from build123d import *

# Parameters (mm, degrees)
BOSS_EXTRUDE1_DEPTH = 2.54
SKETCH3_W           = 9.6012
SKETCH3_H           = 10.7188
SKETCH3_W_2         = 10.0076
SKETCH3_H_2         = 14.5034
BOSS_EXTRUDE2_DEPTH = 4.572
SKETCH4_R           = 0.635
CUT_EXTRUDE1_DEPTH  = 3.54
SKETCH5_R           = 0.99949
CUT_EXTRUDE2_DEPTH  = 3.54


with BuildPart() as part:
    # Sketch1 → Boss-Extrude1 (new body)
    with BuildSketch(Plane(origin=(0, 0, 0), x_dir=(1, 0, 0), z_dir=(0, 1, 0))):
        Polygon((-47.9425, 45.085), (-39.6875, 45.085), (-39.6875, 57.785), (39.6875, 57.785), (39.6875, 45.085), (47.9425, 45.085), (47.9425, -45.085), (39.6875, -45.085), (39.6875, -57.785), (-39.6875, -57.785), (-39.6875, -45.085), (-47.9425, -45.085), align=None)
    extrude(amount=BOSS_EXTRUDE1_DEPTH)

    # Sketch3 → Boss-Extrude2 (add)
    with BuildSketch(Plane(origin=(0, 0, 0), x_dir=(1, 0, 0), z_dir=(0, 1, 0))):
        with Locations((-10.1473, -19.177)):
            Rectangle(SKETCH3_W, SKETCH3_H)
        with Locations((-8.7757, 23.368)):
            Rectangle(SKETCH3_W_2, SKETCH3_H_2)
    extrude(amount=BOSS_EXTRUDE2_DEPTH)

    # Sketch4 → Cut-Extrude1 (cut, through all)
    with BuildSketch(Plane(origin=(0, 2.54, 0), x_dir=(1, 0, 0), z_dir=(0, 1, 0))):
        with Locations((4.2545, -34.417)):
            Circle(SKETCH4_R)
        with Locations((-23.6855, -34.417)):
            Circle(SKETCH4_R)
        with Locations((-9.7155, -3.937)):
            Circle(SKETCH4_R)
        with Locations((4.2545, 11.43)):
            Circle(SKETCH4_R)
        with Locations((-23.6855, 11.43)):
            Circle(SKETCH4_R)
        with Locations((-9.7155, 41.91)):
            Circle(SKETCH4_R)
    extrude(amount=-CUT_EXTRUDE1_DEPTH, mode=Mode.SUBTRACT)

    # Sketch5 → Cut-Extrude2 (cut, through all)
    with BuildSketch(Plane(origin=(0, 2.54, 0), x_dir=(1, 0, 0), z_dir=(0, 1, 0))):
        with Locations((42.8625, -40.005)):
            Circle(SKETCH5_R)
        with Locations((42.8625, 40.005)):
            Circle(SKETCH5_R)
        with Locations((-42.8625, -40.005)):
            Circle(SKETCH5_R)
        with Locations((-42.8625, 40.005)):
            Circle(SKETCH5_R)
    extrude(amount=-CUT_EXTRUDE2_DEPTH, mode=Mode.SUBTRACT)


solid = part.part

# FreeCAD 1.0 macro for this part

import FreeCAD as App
import Part
import Sketcher
Q = App.Units.Quantity


def add_polygon(sketch, points):
    """Adds a closed chain of lines whose ends are joined by coincident constraints."""
    first, n = sketch.GeometryCount, len(points)
    for a, b in zip(points, points[1:] + points[:1]):
        sketch.addGeometry(Part.LineSegment(App.Vector(*a, 0), App.Vector(*b, 0)), False)
    for i in range(n):
        sketch.addConstraint(Sketcher.Constraint("Coincident", first + i, 2, first + (i + 1) % n, 1))

doc = App.newDocument("Part")
body = doc.addObject("PartDesign::Body", "Body")

# Sketch on XZ plane
sketch1 = body.newObject("Sketcher::SketchObject", "Sketch")
sketch1.AttachmentSupport = (doc.getObject("XZ_Plane"), [""])
sketch1.MapMode = "FlatFace"
add_polygon(sketch1, [(-40, -45), (-48, -45), (-48, 45), (-40, 45), (-40, 58), (40, 58), (40, 45), (48, 45), (48, -45), (40, -45), (40, -58), (-40, -58)])  # lines 0-11
sketch1.addConstraint([
    Sketcher.Constraint("Horizontal", 0),
    Sketcher.Constraint("Vertical", 1),
    Sketcher.Constraint("Horizontal", 2),
    Sketcher.Constraint("Vertical", 3),
    Sketcher.Constraint("Horizontal", 4),
    Sketcher.Constraint("Vertical", 5),
    Sketcher.Constraint("Horizontal", 6),
    Sketcher.Constraint("Vertical", 7),
    Sketcher.Constraint("Horizontal", 8),
    Sketcher.Constraint("Vertical", 9),
    Sketcher.Constraint("Horizontal", 10),
    Sketcher.Constraint("Vertical", 11),
    Sketcher.Constraint("Symmetric", 0, 2, 6, 2, -1, 1),
    Sketcher.Constraint("Symmetric", 2, 2, 8, 2, -1, 1),
    Sketcher.Constraint("Symmetric", 4, 2, 10, 2, -1, 1),
    Sketcher.Constraint("Symmetric", 2, 2, 5, 2, -2),
    Sketcher.Constraint("DistanceY", 3, 1, 3, 2, Q("0.5 in")),
    Sketcher.Constraint("DistanceY", 1, 1, 1, 2, Q("3.55 in")),
    Sketcher.Constraint("DistanceX", 0, 2, 0, 1, Q("0.325 in")),
    Sketcher.Constraint("DistanceX", 4, 1, 4, 2, Q("3.125 in")),
])
pad1 = body.newObject("PartDesign::Pad", "Pad")
pad1.Profile = sketch1
pad1.Length = Q("0.1 in")
pad1.Reversed = True

# Sketch on XZ plane
sketch2 = body.newObject("Sketcher::SketchObject", "Sketch001")
sketch2.AttachmentSupport = (doc.getObject("XZ_Plane"), [""])
sketch2.MapMode = "FlatFace"
add_polygon(sketch2, [(-15, 14), (-15, 25), (-5, 25), (-5, 14)])  # lines 0-3
add_polygon(sketch2, [(-14, -31), (-14, -16), (-4, -16), (-4, -31)])  # lines 4-7
sketch2.addConstraint([
    Sketcher.Constraint("Vertical", 0),
    Sketcher.Constraint("Horizontal", 1),
    Sketcher.Constraint("Vertical", 2),
    Sketcher.Constraint("Horizontal", 3),
    Sketcher.Constraint("Vertical", 4),
    Sketcher.Constraint("Horizontal", 5),
    Sketcher.Constraint("Vertical", 6),
    Sketcher.Constraint("Horizontal", 7),
    Sketcher.Constraint("DistanceX", 1, 1, 1, 2, Q("0.378 in")),
    Sketcher.Constraint("DistanceX", 5, 1, 5, 2, Q("0.394 in")),
    Sketcher.Constraint("DistanceY", 0, 1, 0, 2, Q("0.422 in")),
    Sketcher.Constraint("DistanceY", 4, 1, 4, 2, Q("0.571 in")),
    Sketcher.Constraint("DistanceX", 3, 2, 5, 2, Q("0.44 in")),
    Sketcher.Constraint("DistanceY", -1, 1, 0, 2, Q("0.966 in")),
    Sketcher.Constraint("DistanceX", 0, 2, -1, 1, Q("0.5885 in")),
    Sketcher.Constraint("DistanceY", 4, 2, -1, 1, Q("0.6345 in")),
])
pad2 = body.newObject("PartDesign::Pad", "Pad001")
pad2.Profile = sketch2
pad2.Length = Q("0.18 in")
pad2.Reversed = True

# Sketch on XZ plane
sketch3 = body.newObject("Sketcher::SketchObject", "Sketch002")
sketch3.AttachmentSupport = (doc.getObject("XZ_Plane"), [""])
sketch3.MapMode = "FlatFace"
sketch3.AttachmentOffset = App.Placement(App.Vector(0, 0, -0.1 * 25.4), App.Rotation())
sketch3.addGeometry([
    Part.Circle(App.Vector(4.3, 34.4, 0), App.Vector(0, 0, 1), 0.6),  # 0
    Part.Circle(App.Vector(-23.7, 34.4, 0), App.Vector(0, 0, 1), 0.6),  # 1
    Part.Circle(App.Vector(-9.7, 3.9, 0), App.Vector(0, 0, 1), 0.6),  # 2
    Part.Circle(App.Vector(4.3, -11.4, 0), App.Vector(0, 0, 1), 0.6),  # 3
    Part.Circle(App.Vector(-23.7, -11.4, 0), App.Vector(0, 0, 1), 0.6),  # 4
    Part.Circle(App.Vector(-9.7, -41.9, 0), App.Vector(0, 0, 1), 0.6),  # 5
], False)
sketch3.addConstraint([
    Sketcher.Constraint("Equal", 0, 1),
    Sketcher.Constraint("Equal", 1, 2),
    Sketcher.Constraint("Equal", 2, 3),
    Sketcher.Constraint("Equal", 3, 4),
    Sketcher.Constraint("Equal", 4, 5),
    Sketcher.Constraint("Horizontal", 0, 3, 1, 3),
    Sketcher.Constraint("Horizontal", 3, 3, 4, 3),
    Sketcher.Constraint("Vertical", 0, 3, 3, 3),
    Sketcher.Constraint("Vertical", 1, 3, 4, 3),
    Sketcher.Constraint("Vertical", 2, 3, 5, 3),
    Sketcher.Constraint("Diameter", 0, Q("0.05 in")),
    Sketcher.Constraint("DistanceX", 1, 3, 0, 3, Q("1.1 in")),
    Sketcher.Constraint("DistanceY", 2, 3, 0, 3, Q("1.2 in")),
    Sketcher.Constraint("DistanceY", 5, 3, 3, 3, Q("1.2 in")),
    Sketcher.Constraint("DistanceY", 3, 3, -1, 1, Q("0.45 in")),
    Sketcher.Constraint("DistanceX", 2, 3, 0, 3, Q("0.55 in")),
    Sketcher.Constraint("DistanceY", -1, 1, 0, 3, Q("1.355 in")),
    Sketcher.Constraint("DistanceX", -1, 1, 0, 3, Q("0.1675 in")),
])
pocket1 = body.newObject("PartDesign::Pocket", "Pocket")
pocket1.Profile = sketch3
pocket1.Type = "ThroughAll"
pocket1.Reversed = True

# Sketch on XZ plane
sketch4 = body.newObject("Sketcher::SketchObject", "Sketch003")
sketch4.AttachmentSupport = (doc.getObject("XZ_Plane"), [""])
sketch4.MapMode = "FlatFace"
sketch4.AttachmentOffset = App.Placement(App.Vector(0, 0, -0.1 * 25.4), App.Rotation())
sketch4.addGeometry([
    Part.Circle(App.Vector(42.9, 40, 0), App.Vector(0, 0, 1), 1),
    Part.Circle(App.Vector(42.9, -40, 0), App.Vector(0, 0, 1), 1),
    Part.Circle(App.Vector(-42.9, 40, 0), App.Vector(0, 0, 1), 1),
    Part.Circle(App.Vector(-42.9, -40, 0), App.Vector(0, 0, 1), 1),
], False)
sketch4.addConstraint([
    Sketcher.Constraint("Equal", 0, 1),
    Sketcher.Constraint("Equal", 1, 2),
    Sketcher.Constraint("Equal", 2, 3),
    Sketcher.Constraint("Symmetric", 1, 3, 2, 3, -1, 1),
    Sketcher.Constraint("Symmetric", 0, 3, 3, 3, -1, 1),
    Sketcher.Constraint("Symmetric", 0, 3, 2, 3, -2),
    Sketcher.Constraint("Diameter", 0, Q("0.0787 in")),
    Sketcher.Constraint("DistanceY", 1, 3, 0, 3, Q("3.15 in")),
    Sketcher.Constraint("DistanceX", -1, 1, 0, 3, Q("1.6875 in")),
])
pocket2 = body.newObject("PartDesign::Pocket", "Pocket001")
pocket2.Profile = sketch4
pocket2.Type = "ThroughAll"
pocket2.Reversed = True

doc.recompute()
